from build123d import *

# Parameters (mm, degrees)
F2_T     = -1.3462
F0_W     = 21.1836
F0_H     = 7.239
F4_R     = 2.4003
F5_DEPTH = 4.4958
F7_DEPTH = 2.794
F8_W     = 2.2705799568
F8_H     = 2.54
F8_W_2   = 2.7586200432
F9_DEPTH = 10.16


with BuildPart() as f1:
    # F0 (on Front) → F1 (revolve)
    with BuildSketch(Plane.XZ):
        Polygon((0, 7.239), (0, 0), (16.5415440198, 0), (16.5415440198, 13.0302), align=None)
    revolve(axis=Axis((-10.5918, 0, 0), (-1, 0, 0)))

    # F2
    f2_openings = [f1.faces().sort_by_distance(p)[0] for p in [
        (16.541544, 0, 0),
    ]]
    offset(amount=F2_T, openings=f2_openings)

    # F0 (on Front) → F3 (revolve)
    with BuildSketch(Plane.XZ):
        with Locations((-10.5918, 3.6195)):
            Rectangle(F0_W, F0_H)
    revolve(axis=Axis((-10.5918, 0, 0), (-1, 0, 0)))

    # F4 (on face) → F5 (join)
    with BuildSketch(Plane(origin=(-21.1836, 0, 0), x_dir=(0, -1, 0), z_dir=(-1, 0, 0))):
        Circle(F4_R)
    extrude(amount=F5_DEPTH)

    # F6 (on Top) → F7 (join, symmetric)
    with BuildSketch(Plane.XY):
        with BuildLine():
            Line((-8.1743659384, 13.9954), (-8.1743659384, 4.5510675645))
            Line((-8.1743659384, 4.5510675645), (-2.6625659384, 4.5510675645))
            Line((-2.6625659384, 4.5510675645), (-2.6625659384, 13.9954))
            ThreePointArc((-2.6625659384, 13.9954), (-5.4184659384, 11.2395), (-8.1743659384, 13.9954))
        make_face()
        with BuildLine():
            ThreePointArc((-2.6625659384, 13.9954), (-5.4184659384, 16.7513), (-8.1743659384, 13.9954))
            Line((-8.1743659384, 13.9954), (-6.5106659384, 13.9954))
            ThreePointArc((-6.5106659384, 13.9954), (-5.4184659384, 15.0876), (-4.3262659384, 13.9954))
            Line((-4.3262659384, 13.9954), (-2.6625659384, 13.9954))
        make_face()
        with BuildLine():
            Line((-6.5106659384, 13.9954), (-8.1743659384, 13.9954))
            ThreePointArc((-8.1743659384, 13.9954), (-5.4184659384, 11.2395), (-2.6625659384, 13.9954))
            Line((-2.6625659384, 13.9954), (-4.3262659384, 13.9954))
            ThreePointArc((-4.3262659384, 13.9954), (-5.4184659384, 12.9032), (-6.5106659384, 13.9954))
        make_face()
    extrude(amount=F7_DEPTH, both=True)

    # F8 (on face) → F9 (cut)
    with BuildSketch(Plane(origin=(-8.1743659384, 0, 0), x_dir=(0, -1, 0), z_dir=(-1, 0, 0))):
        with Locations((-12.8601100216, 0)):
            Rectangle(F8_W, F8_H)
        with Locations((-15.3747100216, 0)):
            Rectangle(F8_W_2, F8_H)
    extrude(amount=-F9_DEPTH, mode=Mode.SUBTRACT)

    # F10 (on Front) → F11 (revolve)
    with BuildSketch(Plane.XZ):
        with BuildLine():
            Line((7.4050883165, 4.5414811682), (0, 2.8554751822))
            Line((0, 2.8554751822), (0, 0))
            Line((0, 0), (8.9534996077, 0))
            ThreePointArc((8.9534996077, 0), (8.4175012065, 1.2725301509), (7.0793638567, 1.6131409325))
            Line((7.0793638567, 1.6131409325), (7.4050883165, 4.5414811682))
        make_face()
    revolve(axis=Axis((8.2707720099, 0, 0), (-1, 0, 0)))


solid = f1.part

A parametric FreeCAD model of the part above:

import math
import FreeCAD as App
import Part
import Sketcher

V = App.Vector
Q = App.Units.Quantity


def faces_at(feature, points):
    """Names of the faces that lie closest to the given points."""
    faces = feature.Shape.Faces
    near = lambda p: min(range(len(faces)), key=lambda i: faces[i].distToShape(Part.Vertex(*p))[0])
    return sorted({f"Face{near(p) + 1}" for p in points})


def add_polygon(sketch, points):
    """Adds a closed chain of lines whose ends are joined by coincident constraints."""
    first, n = sketch.GeometryCount, len(points)
    for a, b in zip(points, points[1:] + points[:1]):
        sketch.addGeometry(Part.LineSegment(App.Vector(*a, 0), App.Vector(*b, 0)), False)
    for i in range(n):
        sketch.addConstraint(Sketcher.Constraint("Coincident", first + i, 2, first + (i + 1) % n, 1))

doc = App.newDocument("Part")
body = doc.addObject("PartDesign::Body", "Body")

# Sketch on XZ plane
sketch1 = body.newObject("Sketcher::SketchObject", "Sketch")
sketch1.AttachmentSupport = (doc.getObject("XZ_Plane"), [""])
sketch1.MapMode = "FlatFace"
add_polygon(sketch1, [(0, 7), (0, 0), (17, 0), (17, 13)])  # lines 0-3
sketch1.addConstraint(Sketcher.Constraint("Vertical", 0))
sketch1.addConstraint(Sketcher.Constraint("Horizontal", 1))
sketch1.addConstraint(Sketcher.Constraint("Vertical", 2))
sketch1.addConstraint(Sketcher.Constraint("Coincident", 0, 2, -1, 1))
sketch1.addConstraint(Sketcher.Constraint("Distance", 3, Q("0.69 in")))
sketch1.addConstraint(Sketcher.Constraint("DistanceY", 0, 2, 0, 1, Q("0.285 in")))
sketch1.addConstraint(Sketcher.Constraint("DistanceY", 2, 1, 2, 2, Q("0.513 in")))
revolution = body.newObject("PartDesign::Revolution", "Revolution")
revolution.Profile = sketch1
revolution.ReferenceAxis = (sketch1, ["H_Axis"])
revolution.Angle = 360
doc.recompute()

thickness = body.newObject("PartDesign::Thickness", "Thickness")
thickness.Base = (revolution, faces_at(revolution, [(16.542, 0, 0)]))
thickness.Value = Q("0.053 in")
thickness.Reversed = True
thickness.Join = "Arc"

# Sketch on XZ plane
sketch2 = body.newObject("Sketcher::SketchObject", "Sketch001")
sketch2.AttachmentSupport = (doc.getObject("XZ_Plane"), [""])
sketch2.MapMode = "FlatFace"
add_polygon(sketch2, [(-21, 7), (-21, 0), (0, 0), (0, 7)])  # lines 0-3
sketch2.addConstraint(Sketcher.Constraint("Vertical", 0))
sketch2.addConstraint(Sketcher.Constraint("Horizontal", 1))
sketch2.addConstraint(Sketcher.Constraint("Vertical", 2))
sketch2.addConstraint(Sketcher.Constraint("Horizontal", 3))
sketch2.addConstraint(Sketcher.Constraint("Coincident", 1, 2, -1, 1))
sketch2.addConstraint(Sketcher.Constraint("DistanceX", 1, 1, 1, 2, Q("0.834 in")))
sketch2.addConstraint(Sketcher.Constraint("DistanceY", 0, 2, 0, 1, Q("0.285 in")))
revolution2 = body.newObject("PartDesign::Revolution", "Revolution001")
revolution2.Profile = sketch2
revolution2.ReferenceAxis = (sketch2, ["H_Axis"])
revolution2.Angle = 360

# Sketch on YZ plane
sketch3 = body.newObject("Sketcher::SketchObject", "Sketch002")
sketch3.AttachmentSupport = (doc.getObject("YZ_Plane"), [""])
sketch3.MapMode = "FlatFace"
sketch3.AttachmentOffset = App.Placement(V(0, 0, -0.834 * 25.4), App.Rotation())
sketch3.addGeometry(Part.Circle(V(0, 0, 0), V(0, 0, 1), 2.4), False)
sketch3.addConstraint(Sketcher.Constraint("Coincident", 0, 3, -1, 1))
sketch3.addConstraint(Sketcher.Constraint("Diameter", 0, Q("0.189 in")))
pad1 = body.newObject("PartDesign::Pad", "Pad")
pad1.Profile = sketch3
pad1.Length = Q("0.177 in")
pad1.Reversed = True

# Sketch on XY plane
sketch4 = body.newObject("Sketcher::SketchObject", "Sketch003")
sketch4.AttachmentSupport = (doc.getObject("XY_Plane"), [""])
sketch4.MapMode = "FlatFace"
sketch4.addGeometry(Part.LineSegment(V(-8.2, 14, 0), V(-8.2, 4.6, 0)), False)
sketch4.addGeometry(Part.LineSegment(V(-8.2, 4.6, 0), V(-2.7, 4.6, 0)), False)
sketch4.addGeometry(Part.LineSegment(V(-2.7, 4.6, 0), V(-2.7, 14, 0)), False)
sketch4.addGeometry(Part.ArcOfCircle(Part.Circle(V(-5.4, 14, 0), V(0, 0, 1), 2.8), math.radians(0), math.radians(180)), False)
sketch4.addGeometry(Part.Circle(V(-5.4, 14, 0), V(0, 0, 1), 1.1), False)
sketch4.addConstraint(Sketcher.Constraint("Coincident", 0, 2, 1, 1))
sketch4.addConstraint(Sketcher.Constraint("Coincident", 1, 2, 2, 1))
sketch4.addConstraint(Sketcher.Constraint("Tangent", 2, 2, 3, 1))
sketch4.addConstraint(Sketcher.Constraint("Tangent", 3, 2, 0, 1))
sketch4.addConstraint(Sketcher.Constraint("Vertical", 0))
sketch4.addConstraint(Sketcher.Constraint("Horizontal", 1))
sketch4.addConstraint(Sketcher.Constraint("Vertical", 2))
sketch4.addConstraint(Sketcher.Constraint("Coincident", 4, 3, 3, 3))
sketch4.addConstraint(Sketcher.Constraint("Diameter", 4, Q("0.086 in")))
sketch4.addConstraint(Sketcher.Constraint("Radius", 3, Q("0.1085 in")))
sketch4.addConstraint(Sketcher.Constraint("DistanceY", -1, 1, 3, 3, Q("0.551 in")))
sketch4.addConstraint(Sketcher.Constraint("DistanceY", 0, 2, 0, 1, Q("9.444332 mm")))
sketch4.addConstraint(Sketcher.Constraint("DistanceX", 3, 3, -1, 1, Q("5.418466 mm")))
pad2 = body.newObject("PartDesign::Pad", "Pad001")
pad2.Profile = sketch4
pad2.Length = Q("0.22 in")
pad2.Midplane = True

# Sketch on YZ plane
sketch5 = body.newObject("Sketcher::SketchObject", "Sketch004")
sketch5.AttachmentSupport = (doc.getObject("YZ_Plane"), [""])
sketch5.MapMode = "FlatFace"
sketch5.AttachmentOffset = App.Placement(V(0, 0, -8.174366), App.Rotation())
add_polygon(sketch5, [(11.7, -1.3), (11.7, 1.3), (16.8, 1.3), (16.8, -1.3)])  # lines 0-3
sketch5.addConstraint(Sketcher.Constraint("Vertical", 0))
sketch5.addConstraint(Sketcher.Constraint("Horizontal", 1))
sketch5.addConstraint(Sketcher.Constraint("Vertical", 2))
sketch5.addConstraint(Sketcher.Constraint("Horizontal", 3))
sketch5.addConstraint(Sketcher.Constraint("DistanceY", 0, 1, 0, 2, Q("0.1 in")))
sketch5.addConstraint(Sketcher.Constraint("DistanceX", 1, 1, 1, 2, Q("0.198 in")))
sketch5.addConstraint(Sketcher.Constraint("DistanceY", -1, 1, 0, 2, Q("0.05 in")))
sketch5.addConstraint(Sketcher.Constraint("DistanceX", -1, 1, 0, 2, Q("11.72482 mm")))
pocket1 = body.newObject("PartDesign::Pocket", "Pocket")
pocket1.Profile = sketch5
pocket1.Length = Q("0.4 in")
pocket1.Reversed = True

# Sketch on XZ plane
sketch6 = body.newObject("Sketcher::SketchObject", "Sketch005")
sketch6.AttachmentSupport = (doc.getObject("XZ_Plane"), [""])
sketch6.MapMode = "FlatFace"
sketch6.addGeometry(Part.LineSegment(V(7.4, 4.5, 0), V(0, 2.9, 0)), False)
sketch6.addGeometry(Part.LineSegment(V(0, 2.9, 0), V(0, 0, 0)), False)
sketch6.addGeometry(Part.LineSegment(V(0, 0, 0), V(9, 0, 0)), False)
sketch6.addGeometry(Part.ArcOfCircle(Part.Circle(V(7.4, 0.1, 0), V(0, 0, 1), 1.6), math.radians(-4), math.radians(102)), False)
sketch6.addGeometry(Part.LineSegment(V(7.1, 1.6, 0), V(7.4, 4.5, 0)), False)
sketch6.addConstraint(Sketcher.Constraint("Coincident", 0, 2, 1, 1))
sketch6.addConstraint(Sketcher.Constraint("Coincident", 1, 2, 2, 1))
sketch6.addConstraint(Sketcher.Constraint("Coincident", 2, 2, 3, 1))
sketch6.addConstraint(Sketcher.Constraint("Coincident", 3, 2, 4, 1))
sketch6.addConstraint(Sketcher.Constraint("Coincident", 4, 2, 0, 1))
sketch6.addConstraint(Sketcher.Constraint("Vertical", 1))
sketch6.addConstraint(Sketcher.Constraint("Horizontal", 2))
sketch6.addConstraint(Sketcher.Constraint("Coincident", 1, 2, -1, 1))
sketch6.addConstraint(Sketcher.Constraint("Distance", 0, Q("0.299 in")))
sketch6.addConstraint(Sketcher.Constraint("Distance", 4, Q("0.116 in")))
sketch6.addConstraint(Sketcher.Constraint("DistanceX", 2, 1, 2, 2, Q("0.3525 in")))
sketch6.addConstraint(Sketcher.Constraint("Radius", 3, Q("1.550616 mm")))
sketch6.addConstraint(Sketcher.Constraint("DistanceY", 1, 2, 1, 1, Q("2.855475 mm")))
sketch6.addConstraint(Sketcher.Constraint("DistanceX", -1, 1, 3, 3, Q("7.40594 mm")))
sketch6.addConstraint(Sketcher.Constraint("DistanceY", -1, 1, 3, 2, Q("1.613141 mm")))
revolution3 = body.newObject("PartDesign::Revolution", "Revolution002")
revolution3.Profile = sketch6
revolution3.ReferenceAxis = (sketch6, ["H_Axis"])
revolution3.Angle = 360

doc.recompute()
